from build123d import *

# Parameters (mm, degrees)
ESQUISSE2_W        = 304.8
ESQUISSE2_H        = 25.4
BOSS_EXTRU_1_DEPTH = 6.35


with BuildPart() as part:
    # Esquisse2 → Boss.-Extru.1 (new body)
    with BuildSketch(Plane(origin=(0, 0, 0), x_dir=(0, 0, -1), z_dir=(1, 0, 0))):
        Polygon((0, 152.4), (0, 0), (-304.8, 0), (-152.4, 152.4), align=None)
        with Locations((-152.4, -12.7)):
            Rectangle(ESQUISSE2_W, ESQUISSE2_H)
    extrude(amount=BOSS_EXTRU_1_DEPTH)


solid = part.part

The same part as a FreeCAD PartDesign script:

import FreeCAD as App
import Part
import Sketcher

V = App.Vector
Q = App.Units.Quantity

doc = App.newDocument("Part")
params = doc.addObject("Spreadsheet::Sheet", "Params")
for row, (alias, value) in enumerate([
    ("sketch1_width", "7 in"),
    ("sketch1_width2", "1 in"),
    ("sketch1_height", "6 in"),
    ("sketch1_height2", "12 in"),
    ("pad1_length", "0.25 in"),
], start=1):
    params.set(f"A{row}", alias)
    params.set(f"B{row}", "=" + value)
    params.setAlias(f"B{row}", alias)

body = doc.addObject("PartDesign::Body", "Body")

# Sketch on YZ plane
sketch1 = body.newObject("Sketcher::SketchObject", "Sketch")
sketch1.AttachmentSupport = (doc.getObject("YZ_Plane"), [""])
sketch1.MapMode = "FlatFace"
sketch1.addGeometry([
    Part.LineSegment(V(-25, 0, 0), V(152, 0, 0)),  # 0
    Part.LineSegment(V(152, 0, 0), V(152, 152, 0)),  # 1
    Part.LineSegment(V(152, 152, 0), V(0, 305, 0)),  # 2
    Part.LineSegment(V(0, 305, 0), V(-25, 305, 0)),  # 3
    Part.LineSegment(V(-25, 305, 0), V(-25, 0, 0)),  # 4
], False)
sketch1.addConstraint([
    Sketcher.Constraint("Coincident", 0, 2, 1, 1),
    Sketcher.Constraint("Coincident", 1, 2, 2, 1),
    Sketcher.Constraint("Coincident", 2, 2, 3, 1),
    Sketcher.Constraint("Coincident", 3, 2, 4, 1),
    Sketcher.Constraint("Coincident", 4, 2, 0, 1),
    Sketcher.Constraint("Horizontal", 0),
    Sketcher.Constraint("Vertical", 1),
    Sketcher.Constraint("Horizontal", 3),
    Sketcher.Constraint("Vertical", 4),
    Sketcher.Constraint("PointOnObject", 0, 2, -1),
    Sketcher.Constraint("PointOnObject", 2, 2, -2),
    Sketcher.Constraint("DistanceX", 0, 1, 0, 2, Q("7 in")),
    Sketcher.Constraint("DistanceX", 3, 2, 3, 1, Q("1 in")),
    Sketcher.Constraint("DistanceY", 1, 1, 1, 2, Q("6 in")),
    Sketcher.Constraint("DistanceY", 4, 2, 4, 1, Q("12 in")),
])
sketch1.setExpression("Constraints[11]", "Params.sketch1_width")
sketch1.setExpression("Constraints[12]", "Params.sketch1_width2")
sketch1.setExpression("Constraints[13]", "Params.sketch1_height")
sketch1.setExpression("Constraints[14]", "Params.sketch1_height2")
pad1 = body.newObject("PartDesign::Pad", "Pad")
pad1.Profile = sketch1
pad1.setExpression("Length", "Params.pad1_length")

doc.recompute()
